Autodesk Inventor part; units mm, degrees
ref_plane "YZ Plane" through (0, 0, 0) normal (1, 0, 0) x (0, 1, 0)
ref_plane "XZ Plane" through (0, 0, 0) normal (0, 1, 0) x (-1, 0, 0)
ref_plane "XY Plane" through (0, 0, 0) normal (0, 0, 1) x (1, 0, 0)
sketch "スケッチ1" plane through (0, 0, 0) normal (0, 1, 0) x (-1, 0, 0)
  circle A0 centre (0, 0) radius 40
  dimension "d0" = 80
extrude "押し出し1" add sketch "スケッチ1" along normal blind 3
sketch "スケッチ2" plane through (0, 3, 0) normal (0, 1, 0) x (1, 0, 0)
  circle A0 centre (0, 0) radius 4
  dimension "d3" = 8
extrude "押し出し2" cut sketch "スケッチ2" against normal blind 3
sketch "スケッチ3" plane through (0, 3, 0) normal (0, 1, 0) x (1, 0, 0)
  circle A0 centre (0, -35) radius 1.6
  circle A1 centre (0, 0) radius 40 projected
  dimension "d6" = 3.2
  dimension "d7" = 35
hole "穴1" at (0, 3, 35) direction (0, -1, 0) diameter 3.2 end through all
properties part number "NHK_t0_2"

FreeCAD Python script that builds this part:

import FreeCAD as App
import Part
import Sketcher
from FreeCAD import Vector
Q = App.Units.Quantity

doc = App.newDocument("Part")
body = doc.addObject("PartDesign::Body", "Body")

# Sketch on XZ plane
sketch1 = body.newObject("Sketcher::SketchObject", "Sketch")
sketch1.AttachmentSupport = (doc.getObject("XZ_Plane"), [""])
sketch1.MapMode = "FlatFace"
sketch1.addGeometry(Part.Circle(Vector(0, 0, 0), Vector(0, 0, 1), 40), False)
sketch1.addConstraint([
    Sketcher.Constraint("Coincident", 0, 3, -1, 1),
    Sketcher.Constraint("Diameter", 0, Q("80 mm")),
])
pad1 = body.newObject("PartDesign::Pad", "Pad")
pad1.Profile = sketch1
pad1.Length = 3
pad1.Reversed = True

# Sketch on XZ plane
sketch2 = body.newObject("Sketcher::SketchObject", "Sketch001")
sketch2.AttachmentSupport = (doc.getObject("XZ_Plane"), [""])
sketch2.MapMode = "FlatFace"
sketch2.AttachmentOffset = App.Placement(Vector(0, 0, -3), App.Rotation())
sketch2.addGeometry(Part.Circle(Vector(0, 0, 0), Vector(0, 0, 1), 4), False)
sketch2.addConstraint([
    Sketcher.Constraint("Coincident", 0, 3, -1, 1),
    Sketcher.Constraint("Diameter", 0, Q("8 mm")),
])
pocket1 = body.newObject("PartDesign::Pocket", "Pocket")
pocket1.Profile = sketch2
pocket1.Length = 3
pocket1.Reversed = True

# Sketch on XZ plane
sketch3 = body.newObject("Sketcher::SketchObject", "Sketch002")
sketch3.AttachmentSupport = (doc.getObject("XZ_Plane"), [""])
sketch3.MapMode = "FlatFace"
sketch3.AttachmentOffset = App.Placement(Vector(0, 0, -3), App.Rotation())
sketch3.addGeometry(Part.Circle(Vector(0, 35, 0), Vector(0, 0, 1), 1.6), False)
sketch3.addConstraint([
    Sketcher.Constraint("PointOnObject", 0, 3, -2),
    Sketcher.Constraint("Diameter", 0, Q("3.2 mm")),
    Sketcher.Constraint("DistanceY", -1, 1, 0, 3, Q("35 mm")),
])
doc.recompute()
hole = body.newObject("PartDesign::Hole", "Hole")
hole.Profile = sketch3
hole.ThreadType = "None"
hole.Diameter = 3.2
hole.DepthType = "ThroughAll"
hole.Reversed = True

doc.recompute()
